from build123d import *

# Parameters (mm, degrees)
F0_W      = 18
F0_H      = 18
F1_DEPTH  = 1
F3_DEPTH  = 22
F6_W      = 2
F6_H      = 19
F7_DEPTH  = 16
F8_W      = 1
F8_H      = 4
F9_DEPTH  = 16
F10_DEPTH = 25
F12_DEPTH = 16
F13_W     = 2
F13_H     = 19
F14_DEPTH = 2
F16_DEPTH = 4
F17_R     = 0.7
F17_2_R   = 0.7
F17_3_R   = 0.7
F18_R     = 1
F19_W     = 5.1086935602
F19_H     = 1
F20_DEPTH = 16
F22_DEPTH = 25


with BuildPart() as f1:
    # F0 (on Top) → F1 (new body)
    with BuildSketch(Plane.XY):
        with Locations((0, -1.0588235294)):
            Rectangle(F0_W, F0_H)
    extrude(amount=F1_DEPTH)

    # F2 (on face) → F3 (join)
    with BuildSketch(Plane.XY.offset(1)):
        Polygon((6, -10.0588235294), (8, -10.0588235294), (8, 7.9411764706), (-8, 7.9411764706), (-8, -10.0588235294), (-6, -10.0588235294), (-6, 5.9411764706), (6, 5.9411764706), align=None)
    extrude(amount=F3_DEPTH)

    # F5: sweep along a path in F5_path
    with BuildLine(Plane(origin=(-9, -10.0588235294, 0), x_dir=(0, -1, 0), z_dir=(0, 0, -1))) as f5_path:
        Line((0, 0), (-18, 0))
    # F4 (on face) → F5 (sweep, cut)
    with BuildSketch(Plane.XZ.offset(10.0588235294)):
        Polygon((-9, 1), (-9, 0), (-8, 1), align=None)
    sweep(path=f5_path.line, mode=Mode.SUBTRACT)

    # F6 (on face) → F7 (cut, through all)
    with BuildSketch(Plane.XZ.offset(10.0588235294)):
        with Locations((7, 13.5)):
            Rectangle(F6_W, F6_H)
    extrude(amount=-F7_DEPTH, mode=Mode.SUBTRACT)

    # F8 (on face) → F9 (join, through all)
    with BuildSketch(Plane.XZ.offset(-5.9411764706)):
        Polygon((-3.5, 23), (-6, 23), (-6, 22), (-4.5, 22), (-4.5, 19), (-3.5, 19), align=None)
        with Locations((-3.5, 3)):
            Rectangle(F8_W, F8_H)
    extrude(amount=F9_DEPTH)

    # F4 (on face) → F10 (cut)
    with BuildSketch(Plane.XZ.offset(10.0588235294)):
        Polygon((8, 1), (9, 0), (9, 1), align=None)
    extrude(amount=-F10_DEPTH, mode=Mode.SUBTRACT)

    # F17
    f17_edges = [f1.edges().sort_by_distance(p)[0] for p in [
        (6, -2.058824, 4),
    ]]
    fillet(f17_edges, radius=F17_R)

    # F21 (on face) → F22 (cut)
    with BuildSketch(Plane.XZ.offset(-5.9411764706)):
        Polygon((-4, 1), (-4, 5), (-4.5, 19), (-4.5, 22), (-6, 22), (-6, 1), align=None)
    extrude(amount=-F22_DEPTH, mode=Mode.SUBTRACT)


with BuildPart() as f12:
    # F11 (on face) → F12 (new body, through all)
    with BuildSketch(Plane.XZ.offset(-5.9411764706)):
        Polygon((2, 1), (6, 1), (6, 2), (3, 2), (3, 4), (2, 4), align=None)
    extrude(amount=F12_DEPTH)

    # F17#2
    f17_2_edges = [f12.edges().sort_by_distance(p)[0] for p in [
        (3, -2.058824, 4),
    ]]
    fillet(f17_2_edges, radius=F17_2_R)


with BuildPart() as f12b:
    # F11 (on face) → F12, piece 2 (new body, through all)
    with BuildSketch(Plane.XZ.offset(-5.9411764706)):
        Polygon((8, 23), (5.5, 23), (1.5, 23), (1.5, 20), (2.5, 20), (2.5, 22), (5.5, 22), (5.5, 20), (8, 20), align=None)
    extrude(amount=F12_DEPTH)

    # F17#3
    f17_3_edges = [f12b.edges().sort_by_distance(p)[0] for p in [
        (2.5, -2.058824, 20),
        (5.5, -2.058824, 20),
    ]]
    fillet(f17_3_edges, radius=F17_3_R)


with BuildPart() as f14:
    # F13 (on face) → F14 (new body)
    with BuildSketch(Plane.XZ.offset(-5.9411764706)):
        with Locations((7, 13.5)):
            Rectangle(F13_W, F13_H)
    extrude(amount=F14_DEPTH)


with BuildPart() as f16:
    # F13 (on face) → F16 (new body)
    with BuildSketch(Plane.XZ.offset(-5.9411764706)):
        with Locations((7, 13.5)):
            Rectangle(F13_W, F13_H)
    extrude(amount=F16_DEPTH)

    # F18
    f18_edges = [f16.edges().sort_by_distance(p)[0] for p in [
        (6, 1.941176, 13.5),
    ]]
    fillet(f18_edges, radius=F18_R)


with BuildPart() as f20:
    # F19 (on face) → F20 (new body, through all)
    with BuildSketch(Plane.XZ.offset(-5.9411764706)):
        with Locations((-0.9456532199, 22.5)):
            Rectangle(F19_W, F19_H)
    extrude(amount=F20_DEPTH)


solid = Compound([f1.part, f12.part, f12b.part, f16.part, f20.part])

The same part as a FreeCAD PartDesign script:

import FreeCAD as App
import Part
import Sketcher

V = App.Vector
Q = App.Units.Quantity


def edges_at(feature, points):
    """Names of the edges that pass closest to the given points."""
    edges = feature.Shape.Edges
    near = lambda p: min(range(len(edges)), key=lambda i: edges[i].distToShape(Part.Vertex(*p))[0])
    return sorted({f"Edge{near(p) + 1}" for p in points})


def add_polygon(sketch, points):
    """Adds a closed chain of lines whose ends are joined by coincident constraints."""
    first, n = sketch.GeometryCount, len(points)
    for a, b in zip(points, points[1:] + points[:1]):
        sketch.addGeometry(Part.LineSegment(App.Vector(*a, 0), App.Vector(*b, 0)), False)
    for i in range(n):
        sketch.addConstraint(Sketcher.Constraint("Coincident", first + i, 2, first + (i + 1) % n, 1))

doc = App.newDocument("Part")
params = doc.addObject("Spreadsheet::Sheet", "Params")
for row, (alias, value) in enumerate([
    ("sketch1_width", "18 mm"),
    ("pad1_length", "1 mm"),
    ("sketch2_width", "2 mm"),
    ("sketch2_width2", "16 mm"),
    ("sketch2_height", "18 mm"),
    ("pad2_length", "22 mm"),
    ("sketch3_width", "1 mm"),
    ("sketch4_height", "18 mm"),
    ("sketch5_width", "2 mm"),
    ("sketch5_height", "19 mm"),
    ("pocket1_length", "16 mm"),
    ("sketch6_width", "1 mm"),
    ("sketch6_height", "3 mm"),
    ("sketch6_width2", "2.5 mm"),
    ("pad3_length", "16 mm"),
    ("sketch7_width", "1 mm"),
    ("pocket2_length", "25 mm"),
    ("fillet_radius", "0.7 mm"),
    ("sketch8_width", "2 mm"),
    ("sketch8_height", "4 mm"),
    ("sketch8_height2", "3 mm"),
    ("sketch8_height3", "21 mm"),
    ("sketch8_width2", "1.5 mm"),
    ("pocket3_length", "25 mm"),
    ("sketch9_width", "4 mm"),
    ("sketch9_width2", "3 mm"),
    ("pad4_length", "16 mm"),
    ("fillet2_radius", "0.7 mm"),
    ("sketch10_width", "1 mm"),
    ("sketch10_width2", "3 mm"),
    ("sketch10_height", "2 mm"),
    ("sketch10_width3", "6.5 mm"),
    ("pad5_length", "16 mm"),
    ("fillet3_radius", "0.7 mm"),
    ("sketch11_width", "2 mm"),
    ("sketch11_height", "19 mm"),
    ("pad6_length", "2 mm"),
    ("sketch12_width", "2 mm"),
    ("sketch12_height", "19 mm"),
    ("pad7_length", "4 mm"),
    ("fillet4_radius", "1 mm"),
    ("sketch13_height", "1 mm"),
    ("pad8_length", "16 mm"),
], start=1):
    params.set(f"A{row}", alias)
    params.set(f"B{row}", "=" + value)
    params.setAlias(f"B{row}", alias)

body = doc.addObject("PartDesign::Body", "Body")

# Sketch on XY plane
sketch1 = body.newObject("Sketcher::SketchObject", "Sketch")
sketch1.AttachmentSupport = (doc.getObject("XY_Plane"), [""])
sketch1.MapMode = "FlatFace"
add_polygon(sketch1, [(-9, 8), (-9, -10), (9, -10), (9, 8)])  # lines 0-3
sketch1.addConstraint([
    Sketcher.Constraint("Vertical", 0),
    Sketcher.Constraint("Horizontal", 1),
    Sketcher.Constraint("Vertical", 2),
    Sketcher.Constraint("Horizontal", 3),
    Sketcher.Constraint("Equal", 3, 0),
    Sketcher.Constraint("DistanceX", 1, 1, 1, 2, Q("18 mm")),
    Sketcher.Constraint("DistanceX", 0, 2, -1, 1, Q("9 mm")),
    Sketcher.Constraint("DistanceY", 0, 2, -1, 1, Q("10.058824 mm")),
])
sketch1.setExpression("Constraints[9]", "Params.sketch1_width")
pad1 = body.newObject("PartDesign::Pad", "Pad")
pad1.Profile = sketch1
pad1.setExpression("Length", "Params.pad1_length")

# Sketch on XY plane
sketch2 = body.newObject("Sketcher::SketchObject", "Sketch001")
sketch2.AttachmentSupport = (doc.getObject("XY_Plane"), [""])
sketch2.MapMode = "FlatFace"
sketch2.AttachmentOffset = App.Placement(V(0, 0, 1), App.Rotation())
add_polygon(sketch2, [(6, -10.1), (8, -10.1), (8, 7.9), (-8, 7.9), (-8, -10.1), (-6, -10.1), (-6, 5.9), (6, 5.9)])  # lines 0-7
sketch2.addConstraint([
    Sketcher.Constraint("Horizontal", 0),
    Sketcher.Constraint("Vertical", 1),
    Sketcher.Constraint("Horizontal", 2),
    Sketcher.Constraint("Vertical", 3),
    Sketcher.Constraint("Horizontal", 4),
    Sketcher.Constraint("Vertical", 5),
    Sketcher.Constraint("Horizontal", 6),
    Sketcher.Constraint("Vertical", 7),
    Sketcher.Constraint("Symmetric", 0, 2, 3, 2, -2),
    Sketcher.Constraint("Equal", 0, 4),
    Sketcher.Constraint("Equal", 2, 5),
    Sketcher.Constraint("DistanceX", 0, 1, 0, 2, Q("2 mm")),
    Sketcher.Constraint("DistanceX", 2, 2, 2, 1, Q("16 mm")),
    Sketcher.Constraint("DistanceY", 1, 1, 1, 2, Q("18 mm")),
    Sketcher.Constraint("DistanceY", 0, 2, -1, 1, Q("10.058824 mm")),
])
sketch2.setExpression("Constraints[19]", "Params.sketch2_width")
sketch2.setExpression("Constraints[20]", "Params.sketch2_width2")
sketch2.setExpression("Constraints[21]", "Params.sketch2_height")
pad2 = body.newObject("PartDesign::Pad", "Pad001")
pad2.Profile = sketch2
pad2.setExpression("Length", "Params.pad2_length")

# Sketch on XZ plane
sketch3 = body.newObject("Sketcher::SketchObject", "Sketch002")
sketch3.AttachmentSupport = (doc.getObject("XZ_Plane"), [""])
sketch3.MapMode = "FlatFace"
sketch3.AttachmentOffset = App.Placement(V(0, 0, 10.058824), App.Rotation())
add_polygon(sketch3, [(-9, 1), (-9, 0), (-8, 1)])  # lines 0-2
sketch3.addConstraint([
    Sketcher.Constraint("Vertical", 0),
    Sketcher.Constraint("Horizontal", 2),
    Sketcher.Constraint("PointOnObject", 0, 2, -1),
    Sketcher.Constraint("Equal", 2, 0),
    Sketcher.Constraint("DistanceX", 2, 2, 2, 1, Q("1 mm")),
    Sketcher.Constraint("DistanceX", 0, 2, -1, 1, Q("9 mm")),
])
sketch3.setExpression("Constraints[7]", "Params.sketch3_width")

# Sketch on XY plane
sketch4 = body.newObject("Sketcher::SketchObject", "Sketch003")
sketch4.AttachmentSupport = (doc.getObject("XY_Plane"), [""])
sketch4.MapMode = "FlatFace"
sketch4.addGeometry(Part.LineSegment(V(-9, -10, 0), V(-9, 8, 0)), False)
sketch4.addConstraint([
    Sketcher.Constraint("Vertical", 0),
    Sketcher.Constraint("DistanceY", 0, 1, 0, 2, Q("18 mm")),
    Sketcher.Constraint("DistanceX", 0, 1, -1, 1, Q("9 mm")),
    Sketcher.Constraint("DistanceY", 0, 1, -1, 1, Q("10.058824 mm")),
])
sketch4.setExpression("Constraints[1]", "Params.sketch4_height")
doc.recompute()

subtractivepipe = body.newObject("PartDesign::SubtractivePipe", "SubtractivePipe")
subtractivepipe.Profile = sketch3
subtractivepipe.Spine = (sketch4, ["Edge1"])

# Sketch on XZ plane
sketch5 = body.newObject("Sketcher::SketchObject", "Sketch004")
sketch5.AttachmentSupport = (doc.getObject("XZ_Plane"), [""])
sketch5.MapMode = "FlatFace"
sketch5.AttachmentOffset = App.Placement(V(0, 0, 10.058824), App.Rotation())
add_polygon(sketch5, [(6, 23), (6, 4), (8, 4), (8, 23)])  # lines 0-3
sketch5.addConstraint([
    Sketcher.Constraint("Vertical", 0),
    Sketcher.Constraint("Horizontal", 1),
    Sketcher.Constraint("Vertical", 2),
    Sketcher.Constraint("Horizontal", 3),
    Sketcher.Constraint("DistanceX", 1, 1, 1, 2, Q("2 mm")),
    Sketcher.Constraint("DistanceY", 0, 2, 0, 1, Q("19 mm")),
    Sketcher.Constraint("DistanceX", -1, 1, 0, 2, Q("6 mm")),
    Sketcher.Constraint("DistanceY", -1, 1, 0, 2, Q("4 mm")),
])
sketch5.setExpression("Constraints[8]", "Params.sketch5_width")
sketch5.setExpression("Constraints[9]", "Params.sketch5_height")
pocket1 = body.newObject("PartDesign::Pocket", "Pocket")
pocket1.Profile = sketch5
pocket1.setExpression("Length", "Params.pocket1_length")

# Sketch on XZ plane
sketch6 = body.newObject("Sketcher::SketchObject", "Sketch005")
sketch6.AttachmentSupport = (doc.getObject("XZ_Plane"), [""])
sketch6.MapMode = "FlatFace"
sketch6.AttachmentOffset = App.Placement(V(0, 0, -5.941176), App.Rotation())
add_polygon(sketch6, [(-3.5, 23), (-6, 23), (-6, 22), (-4.5, 22), (-4.5, 19), (-3.5, 19)])  # lines 0-5
add_polygon(sketch6, [(-4, 5), (-4, 1), (-3, 1), (-3, 5)])  # lines 6-9
sketch6.addConstraint([
    Sketcher.Constraint("Horizontal", 0),
    Sketcher.Constraint("Vertical", 1),
    Sketcher.Constraint("Horizontal", 2),
    Sketcher.Constraint("Vertical", 3),
    Sketcher.Constraint("Horizontal", 4),
    Sketcher.Constraint("Vertical", 5),
    Sketcher.Constraint("Vertical", 6),
    Sketcher.Constraint("Horizontal", 7),
    Sketcher.Constraint("Vertical", 8),
    Sketcher.Constraint("Horizontal", 9),
    Sketcher.Constraint("Equal", 4, 7),
    Sketcher.Constraint("Equal", 9, 1),
    Sketcher.Constraint("Equal", 5, 6),
    Sketcher.Constraint("DistanceX", 4, 1, 4, 2, Q("1 mm")),
    Sketcher.Constraint("DistanceY", 3, 2, 3, 1, Q("3 mm")),
    Sketcher.Constraint("DistanceX", 0, 2, 0, 1, Q("2.5 mm")),
    Sketcher.Constraint("DistanceX", 0, 2, -1, 1, Q("6 mm")),
    Sketcher.Constraint("DistanceY", -1, 1, 0, 2, Q("23 mm")),
    Sketcher.Constraint("DistanceX", 6, 2, -1, 1, Q("4 mm")),
    Sketcher.Constraint("DistanceY", -1, 1, 6, 2, Q("1 mm")),
])
sketch6.setExpression("Constraints[23]", "Params.sketch6_width")
sketch6.setExpression("Constraints[24]", "Params.sketch6_height")
sketch6.setExpression("Constraints[25]", "Params.sketch6_width2")
pad3 = body.newObject("PartDesign::Pad", "Pad002")
pad3.Profile = sketch6
pad3.setExpression("Length", "Params.pad3_length")

# Sketch on XZ plane
sketch7 = body.newObject("Sketcher::SketchObject", "Sketch006")
sketch7.AttachmentSupport = (doc.getObject("XZ_Plane"), [""])
sketch7.MapMode = "FlatFace"
sketch7.AttachmentOffset = App.Placement(V(0, 0, 10.058824), App.Rotation())
add_polygon(sketch7, [(8, 1), (9, 0), (9, 1)])  # lines 0-2
sketch7.addConstraint([
    Sketcher.Constraint("Vertical", 1),
    Sketcher.Constraint("Horizontal", 2),
    Sketcher.Constraint("PointOnObject", 0, 2, -1),
    Sketcher.Constraint("Equal", 2, 1),
    Sketcher.Constraint("DistanceX", 2, 2, 2, 1, Q("1 mm")),
    Sketcher.Constraint("DistanceX", -1, 1, 0, 2, Q("9 mm")),
])
sketch7.setExpression("Constraints[7]", "Params.sketch7_width")
pocket2 = body.newObject("PartDesign::Pocket", "Pocket001")
pocket2.Profile = sketch7
pocket2.setExpression("Length", "Params.pocket2_length")
doc.recompute()

fillet = body.newObject("PartDesign::Fillet", "Fillet")
fillet.Base = (pocket2, edges_at(pocket2, [(6, -2.059, 4)]))
fillet.setExpression("Radius", "Params.fillet_radius")

# Sketch on XZ plane
sketch8 = body.newObject("Sketcher::SketchObject", "Sketch007")
sketch8.AttachmentSupport = (doc.getObject("XZ_Plane"), [""])
sketch8.MapMode = "FlatFace"
sketch8.AttachmentOffset = App.Placement(V(0, 0, -5.941176), App.Rotation())
add_polygon(sketch8, [(-4, 1), (-4, 5), (-4.5, 19), (-4.5, 22), (-6, 22), (-6, 1)])  # lines 0-5
sketch8.addConstraint([
    Sketcher.Constraint("Vertical", 0),
    Sketcher.Constraint("Vertical", 2),
    Sketcher.Constraint("Horizontal", 3),
    Sketcher.Constraint("Vertical", 4),
    Sketcher.Constraint("Horizontal", 5),
    Sketcher.Constraint("DistanceX", 5, 1, 5, 2, Q("2 mm")),
    Sketcher.Constraint("DistanceY", 0, 1, 0, 2, Q("4 mm")),
    Sketcher.Constraint("DistanceY", 2, 1, 2, 2, Q("3 mm")),
    Sketcher.Constraint("DistanceY", 4, 2, 4, 1, Q("21 mm")),
    Sketcher.Constraint("DistanceX", 3, 2, 3, 1, Q("1.5 mm")),
    Sketcher.Constraint("DistanceX", 0, 2, -1, 1, Q("4 mm")),
    Sketcher.Constraint("DistanceY", -1, 1, 0, 2, Q("5 mm")),
])
sketch8.setExpression("Constraints[11]", "Params.sketch8_width")
sketch8.setExpression("Constraints[12]", "Params.sketch8_height")
sketch8.setExpression("Constraints[13]", "Params.sketch8_height2")
sketch8.setExpression("Constraints[14]", "Params.sketch8_height3")
sketch8.setExpression("Constraints[15]", "Params.sketch8_width2")
pocket3 = body.newObject("PartDesign::Pocket", "Pocket002")
pocket3.Profile = sketch8
pocket3.setExpression("Length", "Params.pocket3_length")
body2 = doc.addObject("PartDesign::Body", "Body001")

# Sketch on XZ plane
sketch9 = body2.newObject("Sketcher::SketchObject", "Sketch008")
sketch9.AttachmentSupport = (doc.getObject("XZ_Plane001"), [""])
sketch9.MapMode = "FlatFace"
sketch9.AttachmentOffset = App.Placement(V(0, 0, -5.941176), App.Rotation())
add_polygon(sketch9, [(2, 1), (6, 1), (6, 2), (3, 2), (3, 4), (2, 4)])  # lines 0-5
sketch9.addConstraint([
    Sketcher.Constraint("Horizontal", 0),
    Sketcher.Constraint("Vertical", 1),
    Sketcher.Constraint("Horizontal", 2),
    Sketcher.Constraint("Vertical", 3),
    Sketcher.Constraint("Horizontal", 4),
    Sketcher.Constraint("Vertical", 5),
    Sketcher.Constraint("Equal", 4, 1),
    Sketcher.Constraint("Equal", 2, 5),
    Sketcher.Constraint("DistanceX", 0, 1, 0, 2, Q("4 mm")),
    Sketcher.Constraint("DistanceX", 2, 2, 2, 1, Q("3 mm")),
    Sketcher.Constraint("DistanceX", -1, 1, 0, 2, Q("6 mm")),
    Sketcher.Constraint("DistanceY", -1, 1, 0, 2, Q("1 mm")),
])
sketch9.setExpression("Constraints[14]", "Params.sketch9_width")
sketch9.setExpression("Constraints[15]", "Params.sketch9_width2")
pad4 = body2.newObject("PartDesign::Pad", "Pad003")
pad4.Profile = sketch9
pad4.setExpression("Length", "Params.pad4_length")
doc.recompute()

fillet2 = body2.newObject("PartDesign::Fillet", "Fillet001")
fillet2.Base = (pad4, edges_at(pad4, [(3, -2.059, 4)]))
fillet2.setExpression("Radius", "Params.fillet2_radius")
body3 = doc.addObject("PartDesign::Body", "Body002")

# Sketch on XZ plane
sketch10 = body3.newObject("Sketcher::SketchObject", "Sketch009")
sketch10.AttachmentSupport = (doc.getObject("XZ_Plane002"), [""])
sketch10.MapMode = "FlatFace"
sketch10.AttachmentOffset = App.Placement(V(0, 0, -5.941176), App.Rotation())
add_polygon(sketch10, [(8, 23), (1.5, 23), (1.5, 20), (2.5, 20), (2.5, 22), (5.5, 22), (5.5, 20), (8, 20)])  # lines 0-7
sketch10.addConstraint([
    Sketcher.Constraint("Horizontal", 0),
    Sketcher.Constraint("Vertical", 1),
    Sketcher.Constraint("Horizontal", 2),
    Sketcher.Constraint("Vertical", 3),
    Sketcher.Constraint("Horizontal", 4),
    Sketcher.Constraint("Vertical", 5),
    Sketcher.Constraint("Horizontal", 6),
    Sketcher.Constraint("Vertical", 7),
    Sketcher.Constraint("Horizontal", 2, 2, 5, 2),
    Sketcher.Constraint("Equal", 4, 1),
    Sketcher.Constraint("DistanceX", 2, 1, 2, 2, Q("1 mm")),
    Sketcher.Constraint("DistanceX", 4, 1, 4, 2, Q("3 mm")),
    Sketcher.Constraint("DistanceY", 3, 1, 3, 2, Q("2 mm")),
    Sketcher.Constraint("DistanceX", 0, 2, 0, 1, Q("6.5 mm")),
    Sketcher.Constraint("DistanceY", -1, 1, 0, 2, Q("23 mm")),
    Sketcher.Constraint("DistanceX", -1, 1, 6, 2, Q("8 mm")),
])
sketch10.setExpression("Constraints[18]", "Params.sketch10_width")
sketch10.setExpression("Constraints[19]", "Params.sketch10_width2")
sketch10.setExpression("Constraints[20]", "Params.sketch10_height")
sketch10.setExpression("Constraints[21]", "Params.sketch10_width3")
pad5 = body3.newObject("PartDesign::Pad", "Pad004")
pad5.Profile = sketch10
pad5.setExpression("Length", "Params.pad5_length")
doc.recompute()

fillet3 = body3.newObject("PartDesign::Fillet", "Fillet002")
fillet3.Base = (pad5, edges_at(pad5, [(2.5, -2.059, 20), (5.5, -2.059, 20)]))
fillet3.setExpression("Radius", "Params.fillet3_radius")
body4 = doc.addObject("PartDesign::Body", "Body003")

# Sketch on XZ plane
sketch11 = body4.newObject("Sketcher::SketchObject", "Sketch010")
sketch11.AttachmentSupport = (doc.getObject("XZ_Plane003"), [""])
sketch11.MapMode = "FlatFace"
sketch11.AttachmentOffset = App.Placement(V(0, 0, -5.941176), App.Rotation())
add_polygon(sketch11, [(6, 23), (6, 4), (8, 4), (8, 23)])  # lines 0-3
sketch11.addConstraint([
    Sketcher.Constraint("Vertical", 0),
    Sketcher.Constraint("Horizontal", 1),
    Sketcher.Constraint("Vertical", 2),
    Sketcher.Constraint("Horizontal", 3),
    Sketcher.Constraint("DistanceX", 1, 1, 1, 2, Q("2 mm")),
    Sketcher.Constraint("DistanceY", 0, 2, 0, 1, Q("19 mm")),
    Sketcher.Constraint("DistanceX", -1, 1, 0, 2, Q("6 mm")),
    Sketcher.Constraint("DistanceY", -1, 1, 0, 2, Q("4 mm")),
])
sketch11.setExpression("Constraints[8]", "Params.sketch11_width")
sketch11.setExpression("Constraints[9]", "Params.sketch11_height")
pad6 = body4.newObject("PartDesign::Pad", "Pad005")
pad6.Profile = sketch11
pad6.setExpression("Length", "Params.pad6_length")
body5 = doc.addObject("PartDesign::Body", "Body004")

# Sketch on XZ plane
sketch12 = body5.newObject("Sketcher::SketchObject", "Sketch011")
sketch12.AttachmentSupport = (doc.getObject("XZ_Plane004"), [""])
sketch12.MapMode = "FlatFace"
sketch12.AttachmentOffset = App.Placement(V(0, 0, -5.941176), App.Rotation())
add_polygon(sketch12, [(6, 23), (6, 4), (8, 4), (8, 23)])  # lines 0-3
sketch12.addConstraint([
    Sketcher.Constraint("Vertical", 0),
    Sketcher.Constraint("Horizontal", 1),
    Sketcher.Constraint("Vertical", 2),
    Sketcher.Constraint("Horizontal", 3),
    Sketcher.Constraint("DistanceX", 1, 1, 1, 2, Q("2 mm")),
    Sketcher.Constraint("DistanceY", 0, 2, 0, 1, Q("19 mm")),
    Sketcher.Constraint("DistanceX", -1, 1, 0, 2, Q("6 mm")),
    Sketcher.Constraint("DistanceY", -1, 1, 0, 2, Q("4 mm")),
])
sketch12.setExpression("Constraints[8]", "Params.sketch12_width")
sketch12.setExpression("Constraints[9]", "Params.sketch12_height")
pad7 = body5.newObject("PartDesign::Pad", "Pad006")
pad7.Profile = sketch12
pad7.setExpression("Length", "Params.pad7_length")
doc.recompute()

fillet4 = body5.newObject("PartDesign::Fillet", "Fillet003")
fillet4.Base = (pad7, edges_at(pad7, [(6, 1.941, 13.5)]))
fillet4.setExpression("Radius", "Params.fillet4_radius")
body6 = doc.addObject("PartDesign::Body", "Body005")

# Sketch on XZ plane
sketch13 = body6.newObject("Sketcher::SketchObject", "Sketch012")
sketch13.AttachmentSupport = (doc.getObject("XZ_Plane005"), [""])
sketch13.MapMode = "FlatFace"
sketch13.AttachmentOffset = App.Placement(V(0, 0, -5.941176), App.Rotation())
add_polygon(sketch13, [(-3.5, 23), (-3.5, 22), (1.6, 22), (1.6, 23)])  # lines 0-3
sketch13.addConstraint([
    Sketcher.Constraint("Vertical", 0),
    Sketcher.Constraint("Horizontal", 1),
    Sketcher.Constraint("Vertical", 2),
    Sketcher.Constraint("Horizontal", 3),
    Sketcher.Constraint("DistanceY", 0, 2, 0, 1, Q("1 mm")),
    Sketcher.Constraint("DistanceY", -1, 1, 0, 2, Q("22 mm")),
    Sketcher.Constraint("DistanceX", 0, 2, -1, 1, Q("3.5 mm")),
    Sketcher.Constraint("DistanceX", 1, 1, 1, 2, Q("5.108694 mm")),
])
sketch13.setExpression("Constraints[8]", "Params.sketch13_height")
pad8 = body6.newObject("PartDesign::Pad", "Pad007")
pad8.Profile = sketch13
pad8.setExpression("Length", "Params.pad8_length")
body4.Visibility = False

doc.recompute()
